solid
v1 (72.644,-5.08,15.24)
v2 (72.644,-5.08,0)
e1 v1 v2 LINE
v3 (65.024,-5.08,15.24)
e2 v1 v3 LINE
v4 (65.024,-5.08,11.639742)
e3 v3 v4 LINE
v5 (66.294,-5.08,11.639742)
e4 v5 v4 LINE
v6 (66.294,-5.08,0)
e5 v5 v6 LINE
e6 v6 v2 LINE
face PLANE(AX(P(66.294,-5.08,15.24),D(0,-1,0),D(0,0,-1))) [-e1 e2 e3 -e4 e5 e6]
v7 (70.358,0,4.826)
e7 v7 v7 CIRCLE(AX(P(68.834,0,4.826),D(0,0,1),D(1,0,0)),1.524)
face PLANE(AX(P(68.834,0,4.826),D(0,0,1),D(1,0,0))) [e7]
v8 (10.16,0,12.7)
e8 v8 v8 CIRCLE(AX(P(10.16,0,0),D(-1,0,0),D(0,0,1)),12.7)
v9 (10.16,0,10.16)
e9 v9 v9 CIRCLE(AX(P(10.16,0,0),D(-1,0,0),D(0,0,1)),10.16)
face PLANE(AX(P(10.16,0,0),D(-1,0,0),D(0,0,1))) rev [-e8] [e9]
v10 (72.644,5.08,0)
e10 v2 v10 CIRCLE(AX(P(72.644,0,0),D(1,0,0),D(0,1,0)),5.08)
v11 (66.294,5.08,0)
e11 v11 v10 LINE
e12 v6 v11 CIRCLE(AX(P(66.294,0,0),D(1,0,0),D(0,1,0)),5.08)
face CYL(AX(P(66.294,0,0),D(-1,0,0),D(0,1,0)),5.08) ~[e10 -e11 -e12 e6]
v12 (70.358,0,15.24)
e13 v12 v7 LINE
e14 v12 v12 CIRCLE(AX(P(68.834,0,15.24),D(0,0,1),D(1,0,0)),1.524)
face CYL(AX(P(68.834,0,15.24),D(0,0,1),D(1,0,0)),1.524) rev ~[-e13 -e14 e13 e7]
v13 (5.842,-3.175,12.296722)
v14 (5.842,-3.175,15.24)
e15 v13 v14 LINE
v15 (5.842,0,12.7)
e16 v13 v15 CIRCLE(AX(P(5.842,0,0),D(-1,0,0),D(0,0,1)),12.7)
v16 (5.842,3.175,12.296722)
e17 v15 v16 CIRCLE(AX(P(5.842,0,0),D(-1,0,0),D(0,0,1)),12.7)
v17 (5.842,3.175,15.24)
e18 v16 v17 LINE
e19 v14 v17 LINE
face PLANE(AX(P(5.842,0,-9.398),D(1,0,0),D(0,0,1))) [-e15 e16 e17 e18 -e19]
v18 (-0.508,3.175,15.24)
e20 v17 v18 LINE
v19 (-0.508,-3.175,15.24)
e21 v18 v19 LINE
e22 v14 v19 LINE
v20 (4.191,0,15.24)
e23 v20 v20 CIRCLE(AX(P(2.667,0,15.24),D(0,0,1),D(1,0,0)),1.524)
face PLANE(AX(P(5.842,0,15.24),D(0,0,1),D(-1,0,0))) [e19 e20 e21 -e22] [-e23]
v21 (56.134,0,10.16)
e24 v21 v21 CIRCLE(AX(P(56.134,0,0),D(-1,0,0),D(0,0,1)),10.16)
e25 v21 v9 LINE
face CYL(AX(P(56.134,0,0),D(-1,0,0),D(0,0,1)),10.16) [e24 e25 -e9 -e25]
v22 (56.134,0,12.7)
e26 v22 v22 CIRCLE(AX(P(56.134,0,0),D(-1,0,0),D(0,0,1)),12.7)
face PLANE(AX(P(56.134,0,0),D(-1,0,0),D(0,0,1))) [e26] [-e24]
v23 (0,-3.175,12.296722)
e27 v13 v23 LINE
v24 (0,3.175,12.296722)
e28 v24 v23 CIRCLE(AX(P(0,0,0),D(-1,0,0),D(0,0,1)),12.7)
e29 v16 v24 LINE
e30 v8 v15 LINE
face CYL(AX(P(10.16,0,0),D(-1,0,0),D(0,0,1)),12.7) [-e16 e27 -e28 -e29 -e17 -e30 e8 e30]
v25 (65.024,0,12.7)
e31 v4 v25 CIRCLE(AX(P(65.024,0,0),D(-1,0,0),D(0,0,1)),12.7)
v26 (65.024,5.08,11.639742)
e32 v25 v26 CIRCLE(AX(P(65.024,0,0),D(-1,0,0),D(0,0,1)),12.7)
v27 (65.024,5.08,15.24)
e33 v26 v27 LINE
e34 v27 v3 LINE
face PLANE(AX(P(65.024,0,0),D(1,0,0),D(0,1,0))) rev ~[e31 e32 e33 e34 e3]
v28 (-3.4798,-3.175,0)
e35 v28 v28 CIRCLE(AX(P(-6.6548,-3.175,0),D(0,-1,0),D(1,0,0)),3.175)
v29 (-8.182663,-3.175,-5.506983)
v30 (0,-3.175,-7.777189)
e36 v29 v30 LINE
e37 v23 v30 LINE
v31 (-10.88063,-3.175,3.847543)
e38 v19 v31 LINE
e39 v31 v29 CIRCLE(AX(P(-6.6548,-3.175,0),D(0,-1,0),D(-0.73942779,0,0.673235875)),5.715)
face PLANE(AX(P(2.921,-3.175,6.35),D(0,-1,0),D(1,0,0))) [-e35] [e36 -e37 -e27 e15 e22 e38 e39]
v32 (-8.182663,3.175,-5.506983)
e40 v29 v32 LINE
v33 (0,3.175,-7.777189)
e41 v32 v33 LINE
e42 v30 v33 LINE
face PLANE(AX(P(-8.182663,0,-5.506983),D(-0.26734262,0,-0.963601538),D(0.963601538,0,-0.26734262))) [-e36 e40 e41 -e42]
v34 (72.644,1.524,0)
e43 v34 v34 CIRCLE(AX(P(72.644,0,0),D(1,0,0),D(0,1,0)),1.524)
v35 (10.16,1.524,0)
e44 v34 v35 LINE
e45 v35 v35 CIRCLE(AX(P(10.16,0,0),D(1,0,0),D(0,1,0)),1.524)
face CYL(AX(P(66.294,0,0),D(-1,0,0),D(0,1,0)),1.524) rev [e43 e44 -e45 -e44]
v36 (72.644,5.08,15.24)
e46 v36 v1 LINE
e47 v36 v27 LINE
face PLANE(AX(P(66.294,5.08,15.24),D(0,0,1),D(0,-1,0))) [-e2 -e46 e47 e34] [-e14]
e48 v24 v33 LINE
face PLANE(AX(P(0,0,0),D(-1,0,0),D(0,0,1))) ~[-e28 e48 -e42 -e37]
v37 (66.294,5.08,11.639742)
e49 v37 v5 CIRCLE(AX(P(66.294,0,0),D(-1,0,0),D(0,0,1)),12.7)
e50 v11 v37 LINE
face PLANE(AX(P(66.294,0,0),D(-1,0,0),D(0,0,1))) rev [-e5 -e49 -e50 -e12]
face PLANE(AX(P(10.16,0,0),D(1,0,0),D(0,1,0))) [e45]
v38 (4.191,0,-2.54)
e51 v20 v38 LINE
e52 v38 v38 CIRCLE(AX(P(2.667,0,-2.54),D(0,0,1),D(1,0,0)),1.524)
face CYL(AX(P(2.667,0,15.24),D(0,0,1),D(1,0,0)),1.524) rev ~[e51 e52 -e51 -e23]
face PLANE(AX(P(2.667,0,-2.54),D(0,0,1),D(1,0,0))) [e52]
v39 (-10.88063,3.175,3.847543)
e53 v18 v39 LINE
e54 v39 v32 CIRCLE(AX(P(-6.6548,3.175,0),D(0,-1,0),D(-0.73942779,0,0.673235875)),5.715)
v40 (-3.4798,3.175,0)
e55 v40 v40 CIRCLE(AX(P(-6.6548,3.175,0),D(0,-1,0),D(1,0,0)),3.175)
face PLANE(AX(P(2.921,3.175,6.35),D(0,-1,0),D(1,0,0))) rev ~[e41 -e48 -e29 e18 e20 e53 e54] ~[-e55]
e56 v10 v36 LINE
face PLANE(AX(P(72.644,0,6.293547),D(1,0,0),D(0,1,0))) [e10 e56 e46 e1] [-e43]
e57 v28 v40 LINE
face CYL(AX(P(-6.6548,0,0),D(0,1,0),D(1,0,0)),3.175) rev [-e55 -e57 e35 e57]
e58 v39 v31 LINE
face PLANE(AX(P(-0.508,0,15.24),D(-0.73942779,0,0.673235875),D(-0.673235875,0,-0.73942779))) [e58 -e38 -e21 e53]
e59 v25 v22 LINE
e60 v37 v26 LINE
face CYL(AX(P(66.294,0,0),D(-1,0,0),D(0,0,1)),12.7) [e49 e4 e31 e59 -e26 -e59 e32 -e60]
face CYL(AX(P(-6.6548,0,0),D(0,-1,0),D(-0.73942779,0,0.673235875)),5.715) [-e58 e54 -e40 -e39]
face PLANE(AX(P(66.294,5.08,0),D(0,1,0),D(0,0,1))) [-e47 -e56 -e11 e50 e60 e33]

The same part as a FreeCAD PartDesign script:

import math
import FreeCAD as App
import Part
import Sketcher

V = App.Vector
Q = App.Units.Quantity

doc = App.newDocument("Part")
params = doc.addObject("Spreadsheet::Sheet", "Params")
for row, (alias, value) in enumerate([
    ("sketch1_width", "0.4 in"),
    ("sketch1_height", "0.5 in"),
    ("sketch1_height2", "0.1 in"),
    ("sketch1_width2", "1.81 in"),
    ("revolution_angle", "360 deg"),
    ("sketch2_diameter", "0.25 in"),
    ("sketch2_radius", "0.225 in"),
    ("sketch2_width", "0.25 in"),
    ("sketch2_height", "0.97 in"),
    ("pad1_length", "0.25 in"),
    ("sketch3_radius", "0.2 in"),
    ("sketch3_height", "0.6 in"),
    ("pad2_length", "0.25 in"),
    ("sketch4_radius", "0.2 in"),
    ("sketch4_diameter", "0.12 in"),
    ("sketch4_height", "0.6 in"),
    ("pad3_length", "0.05 in"),
    ("sketch5_diameter", "0.12 in"),
    ("pocket1_length", "0.25 in"),
    ("sketch6_diameter", "0.12 in"),
    ("pocket2_length", "2.21 in"),
    ("sketch7_diameter", "0.12 in"),
    ("pocket3_length", "0.41 in"),
    ("sketch8_diameter", "0.12 in"),
    ("pocket4_length", "0.7 in"),
], start=1):
    params.set(f"A{row}", alias)
    params.set(f"B{row}", "=" + value)
    params.setAlias(f"B{row}", alias)

body = doc.addObject("PartDesign::Body", "Body")

sketch1 = body.newObject("Sketcher::SketchObject", "Sketch")
sketch1.AttachmentSupport = (doc.getObject("XZ_Plane"), [""])
sketch1.MapMode = "FlatFace"
sketch1.addGeometry(Part.LineSegment(V(66.3, 0, 0), V(66.3, 12.7, 0)), False)
sketch1.addGeometry(Part.LineSegment(V(66.3, 12.7, 0), V(56.1, 12.7, 0)), False)
sketch1.addGeometry(Part.LineSegment(V(56.1, 12.7, 0), V(56.1, 10.2, 0)), False)
sketch1.addGeometry(Part.LineSegment(V(56.1, 10.2, 0), V(10.2, 10.2, 0)), False)
sketch1.addGeometry(Part.LineSegment(V(10.2, 10.2, 0), V(10.2, 12.7, 0)), False)
sketch1.addGeometry(Part.LineSegment(V(10.2, 12.7, 0), V(0, 12.7, 0)), False)
sketch1.addGeometry(Part.LineSegment(V(0, 12.7, 0), V(0, 0, 0)), False)
sketch1.addGeometry(Part.LineSegment(V(0, 0, 0), V(66.3, 0, 0)), False)
sketch1.addConstraint(Sketcher.Constraint("Coincident", 0, 2, 1, 1))
sketch1.addConstraint(Sketcher.Constraint("Coincident", 1, 2, 2, 1))
sketch1.addConstraint(Sketcher.Constraint("Coincident", 2, 2, 3, 1))
sketch1.addConstraint(Sketcher.Constraint("Coincident", 3, 2, 4, 1))
sketch1.addConstraint(Sketcher.Constraint("Coincident", 4, 2, 5, 1))
sketch1.addConstraint(Sketcher.Constraint("Coincident", 5, 2, 6, 1))
sketch1.addConstraint(Sketcher.Constraint("Coincident", 6, 2, 7, 1))
sketch1.addConstraint(Sketcher.Constraint("Coincident", 7, 2, 0, 1))
sketch1.addConstraint(Sketcher.Constraint("Vertical", 0))
sketch1.addConstraint(Sketcher.Constraint("Horizontal", 1))
sketch1.addConstraint(Sketcher.Constraint("Vertical", 2))
sketch1.addConstraint(Sketcher.Constraint("Horizontal", 3))
sketch1.addConstraint(Sketcher.Constraint("Vertical", 4))
sketch1.addConstraint(Sketcher.Constraint("Horizontal", 5))
sketch1.addConstraint(Sketcher.Constraint("Vertical", 6))
sketch1.addConstraint(Sketcher.Constraint("Horizontal", 7))
sketch1.addConstraint(Sketcher.Constraint("Coincident", 6, 2, -1, 1))
sketch1.addConstraint(Sketcher.Constraint("Horizontal", 1, 2, 4, 2))
sketch1.addConstraint(Sketcher.Constraint("Equal", 1, 5))
sketch1.addConstraint(Sketcher.Constraint("DistanceX", 1, 2, 1, 1, Q("0.4 in")))
sketch1.addConstraint(Sketcher.Constraint("DistanceY", 0, 1, 0, 2, Q("0.5 in")))
sketch1.addConstraint(Sketcher.Constraint("DistanceY", 2, 2, 2, 1, Q("0.1 in")))
sketch1.addConstraint(Sketcher.Constraint("DistanceX", 3, 2, 3, 1, Q("1.81 in")))
sketch1.setExpression("Constraints[19]", "Params.sketch1_width")
sketch1.setExpression("Constraints[20]", "Params.sketch1_height")
sketch1.setExpression("Constraints[21]", "Params.sketch1_height2")
sketch1.setExpression("Constraints[22]", "Params.sketch1_width2")
revolution = body.newObject("PartDesign::Revolution", "Revolution")
revolution.Profile = sketch1
revolution.ReferenceAxis = (sketch1, ["H_Axis"])
revolution.setExpression("Angle", "Params.revolution_angle")

sketch2 = body.newObject("Sketcher::SketchObject", "Sketch001")
sketch2.AttachmentSupport = (doc.getObject("XZ_Plane"), [""])
sketch2.MapMode = "FlatFace"
sketch2.addGeometry(Part.LineSegment(V(5.8, 15.2, 0), V(-0.5, 15.2, 0)), False)
sketch2.addGeometry(Part.LineSegment(V(-0.5, 15.2, 0), V(-10.9, 3.8, 0)), False)
sketch2.addGeometry(Part.ArcOfCircle(Part.Circle(V(-6.7, 0, 0), V(0, 0, 1), 5.7), math.radians(138), math.radians(254)), False)
sketch2.addGeometry(Part.LineSegment(V(-8.2, -5.5, 0), V(5.8, -9.4, 0)), False)
sketch2.addGeometry(Part.LineSegment(V(5.8, -9.4, 0), V(5.8, 15.2, 0)), False)
sketch2.addGeometry(Part.Circle(V(-6.7, 0, 0), V(0, 0, 1), 3.2), False)
sketch2.addConstraint(Sketcher.Constraint("Coincident", 0, 2, 1, 1))
sketch2.addConstraint(Sketcher.Constraint("Tangent", 1, 2, 2, 1))
sketch2.addConstraint(Sketcher.Constraint("Tangent", 2, 2, 3, 1))
sketch2.addConstraint(Sketcher.Constraint("Coincident", 3, 2, 4, 1))
sketch2.addConstraint(Sketcher.Constraint("Coincident", 4, 2, 0, 1))
sketch2.addConstraint(Sketcher.Constraint("Horizontal", 0))
sketch2.addConstraint(Sketcher.Constraint("Vertical", 4))
sketch2.addConstraint(Sketcher.Constraint("Coincident", 5, 3, 2, 3))
sketch2.addConstraint(Sketcher.Constraint("PointOnObject", 2, 3, -1))
sketch2.addConstraint(Sketcher.Constraint("Diameter", 5, Q("0.25 in")))
sketch2.addConstraint(Sketcher.Constraint("Radius", 2, Q("0.225 in")))
sketch2.addConstraint(Sketcher.Constraint("DistanceX", 0, 2, 0, 1, Q("0.25 in")))
sketch2.addConstraint(Sketcher.Constraint("DistanceY", 4, 1, 4, 2, Q("0.97 in")))
sketch2.addConstraint(Sketcher.Constraint("DistanceY", -1, 1, 0, 2, Q("0.6 in")))
sketch2.addConstraint(Sketcher.Constraint("DistanceX", 0, 2, -1, 1, Q("0.02 in")))
sketch2.addConstraint(Sketcher.Constraint("DistanceX", 2, 3, -1, 1, Q("0.262 in")))
sketch2.setExpression("Constraints[9]", "Params.sketch2_diameter")
sketch2.setExpression("Constraints[10]", "Params.sketch2_radius")
sketch2.setExpression("Constraints[11]", "Params.sketch2_width")
sketch2.setExpression("Constraints[12]", "Params.sketch2_height")
pad1 = body.newObject("PartDesign::Pad", "Pad")
pad1.Profile = sketch2
pad1.setExpression("Length", "Params.pad1_length")
pad1.Midplane = True

sketch3 = body.newObject("Sketcher::SketchObject", "Sketch002")
sketch3.AttachmentSupport = (doc.getObject("YZ_Plane"), [""])
sketch3.MapMode = "FlatFace"
sketch3.AttachmentOffset = App.Placement(V(0, 0, 2.61 * 25.4), App.Rotation())
sketch3.addGeometry(Part.LineSegment(V(5, 0, 0), V(5, 15, 0)), False)
sketch3.addGeometry(Part.LineSegment(V(5, 15, 0), V(-5, 15, 0)), False)
sketch3.addGeometry(Part.LineSegment(V(-5, 15, 0), V(-5, 0, 0)), False)
sketch3.addGeometry(Part.ArcOfCircle(Part.Circle(V(0, 0, 0), V(0, 0, 1), 5), math.radians(180), math.radians(360)), False)
sketch3.addConstraint(Sketcher.Constraint("Coincident", 0, 2, 1, 1))
sketch3.addConstraint(Sketcher.Constraint("Coincident", 1, 2, 2, 1))
sketch3.addConstraint(Sketcher.Constraint("Tangent", 2, 2, 3, 1))
sketch3.addConstraint(Sketcher.Constraint("Tangent", 3, 2, 0, 1))
sketch3.addConstraint(Sketcher.Constraint("Vertical", 0))
sketch3.addConstraint(Sketcher.Constraint("Horizontal", 1))
sketch3.addConstraint(Sketcher.Constraint("Vertical", 2))
sketch3.addConstraint(Sketcher.Constraint("Coincident", 3, 3, -1, 1))
sketch3.addConstraint(Sketcher.Constraint("Radius", 3, Q("0.2 in")))
sketch3.addConstraint(Sketcher.Constraint("DistanceY", 0, 1, 0, 2, Q("0.6 in")))
sketch3.setExpression("Constraints[8]", "Params.sketch3_radius")
sketch3.setExpression("Constraints[9]", "Params.sketch3_height")
pad2 = body.newObject("PartDesign::Pad", "Pad001")
pad2.Profile = sketch3
pad2.setExpression("Length", "Params.pad2_length")

sketch4 = body.newObject("Sketcher::SketchObject", "Sketch003")
sketch4.AttachmentSupport = (doc.getObject("YZ_Plane"), [""])
sketch4.MapMode = "FlatFace"
sketch4.AttachmentOffset = App.Placement(V(0, 0, 2.61 * 25.4), App.Rotation())
sketch4.addGeometry(Part.ArcOfCircle(Part.Circle(V(0, 0, 0), V(0, 0, 1), 5.1), math.radians(180), math.radians(360)), False)
sketch4.addGeometry(Part.LineSegment(V(5.1, 0, 0), V(5.1, 15.2, 0)), False)
sketch4.addGeometry(Part.LineSegment(V(5.1, 15.2, 0), V(-5.1, 15.2, 0)), False)
sketch4.addGeometry(Part.LineSegment(V(-5.1, 15.2, 0), V(-5.1, 0, 0)), False)
sketch4.addGeometry(Part.Circle(V(0, 0, 0), V(0, 0, 1), 1.5), False)
sketch4.addConstraint(Sketcher.Constraint("Tangent", 0, 2, 1, 1))
sketch4.addConstraint(Sketcher.Constraint("Coincident", 1, 2, 2, 1))
sketch4.addConstraint(Sketcher.Constraint("Coincident", 2, 2, 3, 1))
sketch4.addConstraint(Sketcher.Constraint("Tangent", 3, 2, 0, 1))
sketch4.addConstraint(Sketcher.Constraint("Vertical", 1))
sketch4.addConstraint(Sketcher.Constraint("Horizontal", 2))
sketch4.addConstraint(Sketcher.Constraint("Vertical", 3))
sketch4.addConstraint(Sketcher.Constraint("Coincident", 0, 3, -1, 1))
sketch4.addConstraint(Sketcher.Constraint("Coincident", 4, 3, -1, 1))
sketch4.addConstraint(Sketcher.Constraint("Radius", 0, Q("0.2 in")))
sketch4.addConstraint(Sketcher.Constraint("Diameter", 4, Q("0.12 in")))
sketch4.addConstraint(Sketcher.Constraint("DistanceY", 1, 1, 1, 2, Q("0.6 in")))
sketch4.setExpression("Constraints[9]", "Params.sketch4_radius")
sketch4.setExpression("Constraints[10]", "Params.sketch4_diameter")
sketch4.setExpression("Constraints[11]", "Params.sketch4_height")
pad3 = body.newObject("PartDesign::Pad", "Pad002")
pad3.Profile = sketch4
pad3.setExpression("Length", "Params.pad3_length")
pad3.Reversed = True

sketch5 = body.newObject("Sketcher::SketchObject", "Sketch004")
sketch5.AttachmentSupport = (doc.getObject("YZ_Plane"), [""])
sketch5.MapMode = "FlatFace"
sketch5.AttachmentOffset = App.Placement(V(0, 0, 2.61 * 25.4), App.Rotation())
sketch5.addGeometry(Part.Circle(V(0, 0, 0), V(0, 0, 1), 1.5), False)
sketch5.addConstraint(Sketcher.Constraint("Coincident", 0, 3, -1, 1))
sketch5.addConstraint(Sketcher.Constraint("Diameter", 0, Q("0.12 in")))
sketch5.setExpression("Constraints[1]", "Params.sketch5_diameter")
pocket1 = body.newObject("PartDesign::Pocket", "Pocket")
pocket1.Profile = sketch5
pocket1.setExpression("Length", "Params.pocket1_length")
pocket1.Reversed = True

sketch6 = body.newObject("Sketcher::SketchObject", "Sketch005")
sketch6.AttachmentSupport = (doc.getObject("YZ_Plane"), [""])
sketch6.MapMode = "FlatFace"
sketch6.AttachmentOffset = App.Placement(V(0, 0, 2.61 * 25.4), App.Rotation())
sketch6.addGeometry(Part.Circle(V(0, 0, 0), V(0, 0, 1), 1.5), False)
sketch6.addConstraint(Sketcher.Constraint("Coincident", 0, 3, -1, 1))
sketch6.addConstraint(Sketcher.Constraint("Diameter", 0, Q("0.12 in")))
sketch6.setExpression("Constraints[1]", "Params.sketch6_diameter")
pocket2 = body.newObject("PartDesign::Pocket", "Pocket001")
pocket2.Profile = sketch6
pocket2.setExpression("Length", "Params.pocket2_length")

sketch7 = body.newObject("Sketcher::SketchObject", "Sketch006")
sketch7.AttachmentSupport = (doc.getObject("XY_Plane"), [""])
sketch7.MapMode = "FlatFace"
sketch7.AttachmentOffset = App.Placement(V(0, 0, 0.6 * 25.4), App.Rotation())
sketch7.addGeometry(Part.Circle(V(68.8, 0, 0), V(0, 0, 1), 1.5), False)
sketch7.addConstraint(Sketcher.Constraint("PointOnObject", 0, 3, -1))
sketch7.addConstraint(Sketcher.Constraint("Diameter", 0, Q("0.12 in")))
sketch7.addConstraint(Sketcher.Constraint("DistanceX", -1, 1, 0, 3, Q("2.71 in")))
sketch7.setExpression("Constraints[1]", "Params.sketch7_diameter")
pocket3 = body.newObject("PartDesign::Pocket", "Pocket002")
pocket3.Profile = sketch7
pocket3.setExpression("Length", "Params.pocket3_length")

sketch8 = body.newObject("Sketcher::SketchObject", "Sketch007")
sketch8.AttachmentSupport = (doc.getObject("XY_Plane"), [""])
sketch8.MapMode = "FlatFace"
sketch8.AttachmentOffset = App.Placement(V(0, 0, 0.6 * 25.4), App.Rotation())
sketch8.addGeometry(Part.Circle(V(2.7, 0, 0), V(0, 0, 1), 1.5), False)
sketch8.addConstraint(Sketcher.Constraint("PointOnObject", 0, 3, -1))
sketch8.addConstraint(Sketcher.Constraint("Diameter", 0, Q("0.12 in")))
sketch8.addConstraint(Sketcher.Constraint("DistanceX", -1, 1, 0, 3, Q("0.105 in")))
sketch8.setExpression("Constraints[1]", "Params.sketch8_diameter")
pocket4 = body.newObject("PartDesign::Pocket", "Pocket003")
pocket4.Profile = sketch8
pocket4.setExpression("Length", "Params.pocket4_length")

doc.recompute()
